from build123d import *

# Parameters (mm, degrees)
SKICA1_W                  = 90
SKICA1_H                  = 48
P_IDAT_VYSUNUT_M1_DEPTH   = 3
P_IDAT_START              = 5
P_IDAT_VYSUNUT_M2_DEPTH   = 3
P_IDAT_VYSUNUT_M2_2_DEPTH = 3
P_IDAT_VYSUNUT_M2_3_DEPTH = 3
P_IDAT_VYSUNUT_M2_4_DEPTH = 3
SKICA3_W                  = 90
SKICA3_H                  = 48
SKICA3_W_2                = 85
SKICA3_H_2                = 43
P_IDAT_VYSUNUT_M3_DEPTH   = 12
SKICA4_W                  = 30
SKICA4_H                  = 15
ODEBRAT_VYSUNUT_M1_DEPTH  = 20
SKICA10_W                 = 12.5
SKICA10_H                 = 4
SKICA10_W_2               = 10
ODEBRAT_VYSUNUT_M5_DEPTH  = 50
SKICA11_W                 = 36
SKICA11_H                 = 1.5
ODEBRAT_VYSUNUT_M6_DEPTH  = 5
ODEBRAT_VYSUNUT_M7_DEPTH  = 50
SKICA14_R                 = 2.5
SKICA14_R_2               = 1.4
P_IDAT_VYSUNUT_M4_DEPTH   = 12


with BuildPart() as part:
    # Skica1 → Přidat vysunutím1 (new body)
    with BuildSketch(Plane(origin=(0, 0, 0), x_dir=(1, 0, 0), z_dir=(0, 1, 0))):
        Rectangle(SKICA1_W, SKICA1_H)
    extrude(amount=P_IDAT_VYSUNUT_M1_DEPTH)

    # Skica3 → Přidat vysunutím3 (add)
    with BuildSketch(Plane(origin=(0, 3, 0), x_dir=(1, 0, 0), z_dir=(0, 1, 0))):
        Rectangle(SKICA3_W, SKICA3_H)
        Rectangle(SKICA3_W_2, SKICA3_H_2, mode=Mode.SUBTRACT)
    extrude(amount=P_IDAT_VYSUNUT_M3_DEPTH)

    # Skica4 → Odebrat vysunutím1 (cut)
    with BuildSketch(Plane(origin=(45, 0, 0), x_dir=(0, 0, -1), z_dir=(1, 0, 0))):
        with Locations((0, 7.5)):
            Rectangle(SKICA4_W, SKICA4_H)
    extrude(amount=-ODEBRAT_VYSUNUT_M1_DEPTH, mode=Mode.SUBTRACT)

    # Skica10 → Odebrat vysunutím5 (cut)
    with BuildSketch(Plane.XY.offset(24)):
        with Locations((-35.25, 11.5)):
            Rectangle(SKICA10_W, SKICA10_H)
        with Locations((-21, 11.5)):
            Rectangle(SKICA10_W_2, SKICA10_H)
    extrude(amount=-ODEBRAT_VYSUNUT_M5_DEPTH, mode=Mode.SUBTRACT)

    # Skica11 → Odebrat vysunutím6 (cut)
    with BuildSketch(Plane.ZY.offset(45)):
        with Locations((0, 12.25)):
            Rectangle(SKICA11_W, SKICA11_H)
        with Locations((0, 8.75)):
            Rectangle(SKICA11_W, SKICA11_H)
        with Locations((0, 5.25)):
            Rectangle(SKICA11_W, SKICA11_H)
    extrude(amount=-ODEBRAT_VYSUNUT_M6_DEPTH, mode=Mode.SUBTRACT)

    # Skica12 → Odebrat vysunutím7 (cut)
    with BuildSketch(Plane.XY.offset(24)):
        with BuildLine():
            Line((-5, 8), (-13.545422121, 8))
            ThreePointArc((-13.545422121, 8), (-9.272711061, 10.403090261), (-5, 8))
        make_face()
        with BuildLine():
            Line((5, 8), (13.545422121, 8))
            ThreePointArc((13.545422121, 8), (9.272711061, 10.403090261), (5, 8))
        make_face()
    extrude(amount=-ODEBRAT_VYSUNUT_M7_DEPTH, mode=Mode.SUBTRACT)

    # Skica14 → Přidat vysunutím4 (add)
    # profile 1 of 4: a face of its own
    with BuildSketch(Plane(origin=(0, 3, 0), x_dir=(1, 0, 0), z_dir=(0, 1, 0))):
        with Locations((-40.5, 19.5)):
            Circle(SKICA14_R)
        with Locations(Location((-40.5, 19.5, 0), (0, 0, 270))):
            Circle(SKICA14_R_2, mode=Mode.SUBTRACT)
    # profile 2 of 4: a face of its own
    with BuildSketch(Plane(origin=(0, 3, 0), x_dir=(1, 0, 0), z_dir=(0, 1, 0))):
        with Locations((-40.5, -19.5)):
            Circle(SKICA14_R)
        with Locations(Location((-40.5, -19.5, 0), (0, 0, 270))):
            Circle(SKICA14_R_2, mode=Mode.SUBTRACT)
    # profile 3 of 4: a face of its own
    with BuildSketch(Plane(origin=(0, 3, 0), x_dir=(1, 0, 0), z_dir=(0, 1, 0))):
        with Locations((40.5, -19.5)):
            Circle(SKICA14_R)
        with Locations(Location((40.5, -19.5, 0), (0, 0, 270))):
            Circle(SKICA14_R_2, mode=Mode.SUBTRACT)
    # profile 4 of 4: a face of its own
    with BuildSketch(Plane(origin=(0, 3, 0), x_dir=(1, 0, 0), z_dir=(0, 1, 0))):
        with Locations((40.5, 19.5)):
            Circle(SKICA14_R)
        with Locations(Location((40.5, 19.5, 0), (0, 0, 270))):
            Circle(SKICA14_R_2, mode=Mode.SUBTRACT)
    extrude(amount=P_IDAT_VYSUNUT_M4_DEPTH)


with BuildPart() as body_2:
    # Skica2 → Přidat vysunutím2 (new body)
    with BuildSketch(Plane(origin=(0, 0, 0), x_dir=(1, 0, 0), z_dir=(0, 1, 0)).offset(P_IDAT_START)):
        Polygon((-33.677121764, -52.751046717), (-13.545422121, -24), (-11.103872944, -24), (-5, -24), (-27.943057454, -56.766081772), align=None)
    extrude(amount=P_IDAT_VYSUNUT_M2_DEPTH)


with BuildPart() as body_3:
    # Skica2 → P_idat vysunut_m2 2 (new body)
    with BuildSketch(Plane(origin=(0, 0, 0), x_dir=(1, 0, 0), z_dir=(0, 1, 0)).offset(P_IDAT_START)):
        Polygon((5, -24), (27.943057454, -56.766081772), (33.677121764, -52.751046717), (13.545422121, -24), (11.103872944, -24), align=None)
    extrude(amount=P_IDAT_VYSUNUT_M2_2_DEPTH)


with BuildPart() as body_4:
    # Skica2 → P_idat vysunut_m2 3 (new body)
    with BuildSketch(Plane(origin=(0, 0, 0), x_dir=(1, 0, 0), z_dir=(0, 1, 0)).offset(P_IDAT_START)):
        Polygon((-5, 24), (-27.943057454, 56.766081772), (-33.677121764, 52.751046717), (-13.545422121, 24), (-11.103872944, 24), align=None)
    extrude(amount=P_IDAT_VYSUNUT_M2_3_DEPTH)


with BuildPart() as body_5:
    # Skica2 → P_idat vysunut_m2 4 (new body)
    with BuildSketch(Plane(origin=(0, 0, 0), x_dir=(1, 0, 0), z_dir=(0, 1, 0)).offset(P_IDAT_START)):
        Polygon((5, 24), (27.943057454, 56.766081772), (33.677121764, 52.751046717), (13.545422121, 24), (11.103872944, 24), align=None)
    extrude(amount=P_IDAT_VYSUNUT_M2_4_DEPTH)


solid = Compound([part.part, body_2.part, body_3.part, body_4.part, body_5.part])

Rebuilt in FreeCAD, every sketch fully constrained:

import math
import FreeCAD as App
import Part
import Sketcher

V = App.Vector
Q = App.Units.Quantity


def add_polygon(sketch, points):
    """Adds a closed chain of lines whose ends are joined by coincident constraints."""
    first, n = sketch.GeometryCount, len(points)
    for a, b in zip(points, points[1:] + points[:1]):
        sketch.addGeometry(Part.LineSegment(App.Vector(*a, 0), App.Vector(*b, 0)), False)
    for i in range(n):
        sketch.addConstraint(Sketcher.Constraint("Coincident", first + i, 2, first + (i + 1) % n, 1))

doc = App.newDocument("Part")
params = doc.addObject("Spreadsheet::Sheet", "Params")
for row, (alias, value) in enumerate([
    ("sketch1_width", "90 mm"),
    ("sketch1_height", "48 mm"),
    ("pad1_length", "3 mm"),
    ("sketch2_width", "90 mm"),
    ("sketch2_width2", "85 mm"),
    ("sketch2_height", "48 mm"),
    ("sketch2_height2", "43 mm"),
    ("pad2_length", "12 mm"),
    ("sketch3_width", "15 mm"),
    ("sketch3_height", "30 mm"),
    ("pocket1_length", "20 mm"),
    ("sketch4_width", "10 mm"),
    ("sketch4_height", "4 mm"),
    ("sketch4_width2", "12.5 mm"),
    ("pocket2_length", "50 mm"),
    ("sketch5_height", "36 mm"),
    ("sketch5_width", "1.5 mm"),
    ("pocket3_length", "5 mm"),
    ("sketch6_radius", "5 mm"),
    ("pocket4_length", "50 mm"),
    ("sketch7_diameter", "5 mm"),
    ("sketch7_diameter2", "2.8 mm"),
    ("pad3_length", "12 mm"),
    ("sketch8_length", "7 mm"),
    ("sketch8_length2", "40 mm"),
    ("pad4_length", "3 mm"),
    ("sketch9_length", "40 mm"),
    ("sketch9_length2", "7 mm"),
    ("pad5_length", "3 mm"),
    ("sketch10_length", "40 mm"),
    ("sketch10_length2", "7 mm"),
    ("pad6_length", "3 mm"),
    ("sketch11_length", "40 mm"),
    ("sketch11_length2", "7 mm"),
    ("pad7_length", "3 mm"),
], start=1):
    params.set(f"A{row}", alias)
    params.set(f"B{row}", "=" + value)
    params.setAlias(f"B{row}", alias)

body = doc.addObject("PartDesign::Body", "Body")

# Sketch on XZ plane
sketch1 = body.newObject("Sketcher::SketchObject", "Sketch")
sketch1.AttachmentSupport = (doc.getObject("XZ_Plane"), [""])
sketch1.MapMode = "FlatFace"
add_polygon(sketch1, [(-45, -24), (-45, 24), (45, 24), (45, -24)])  # lines 0-3
sketch1.addConstraint([
    Sketcher.Constraint("Vertical", 0),
    Sketcher.Constraint("Horizontal", 1),
    Sketcher.Constraint("Vertical", 2),
    Sketcher.Constraint("Horizontal", 3),
    Sketcher.Constraint("Symmetric", 0, 2, 2, 2, -1, 1),
    Sketcher.Constraint("DistanceX", 1, 1, 1, 2, Q("90 mm")),
    Sketcher.Constraint("DistanceY", 0, 1, 0, 2, Q("48 mm")),
])
sketch1.setExpression("Constraints[9]", "Params.sketch1_width")
sketch1.setExpression("Constraints[10]", "Params.sketch1_height")
pad1 = body.newObject("PartDesign::Pad", "Pad")
pad1.Profile = sketch1
pad1.setExpression("Length", "Params.pad1_length")
pad1.Reversed = True

# Sketch on XZ plane
sketch2 = body.newObject("Sketcher::SketchObject", "Sketch001")
sketch2.AttachmentSupport = (doc.getObject("XZ_Plane"), [""])
sketch2.MapMode = "FlatFace"
sketch2.AttachmentOffset = App.Placement(V(0, 0, -3), App.Rotation())
add_polygon(sketch2, [(-45, -24), (-45, 24), (45, 24), (45, -24)])  # lines 0-3
add_polygon(sketch2, [(42.5, 21.5), (-42.5, 21.5), (-42.5, -21.5), (42.5, -21.5)])  # lines 4-7
sketch2.addConstraint([
    Sketcher.Constraint("Vertical", 0),
    Sketcher.Constraint("Horizontal", 1),
    Sketcher.Constraint("Vertical", 2),
    Sketcher.Constraint("Horizontal", 3),
    Sketcher.Constraint("Horizontal", 4),
    Sketcher.Constraint("Vertical", 5),
    Sketcher.Constraint("Horizontal", 6),
    Sketcher.Constraint("Vertical", 7),
    Sketcher.Constraint("Symmetric", 0, 2, 2, 2, -1, 1),
    Sketcher.Constraint("Symmetric", 4, 2, 6, 2, -1, 1),
    Sketcher.Constraint("DistanceX", 1, 1, 1, 2, Q("90 mm")),
    Sketcher.Constraint("DistanceX", 4, 2, 4, 1, Q("85 mm")),
    Sketcher.Constraint("DistanceY", 0, 1, 0, 2, Q("48 mm")),
    Sketcher.Constraint("DistanceY", 5, 2, 5, 1, Q("43 mm")),
])
sketch2.setExpression("Constraints[18]", "Params.sketch2_width")
sketch2.setExpression("Constraints[19]", "Params.sketch2_width2")
sketch2.setExpression("Constraints[20]", "Params.sketch2_height")
sketch2.setExpression("Constraints[21]", "Params.sketch2_height2")
pad2 = body.newObject("PartDesign::Pad", "Pad001")
pad2.Profile = sketch2
pad2.setExpression("Length", "Params.pad2_length")
pad2.Reversed = True

# Sketch on YZ plane
sketch3 = body.newObject("Sketcher::SketchObject", "Sketch002")
sketch3.AttachmentSupport = (doc.getObject("YZ_Plane"), [""])
sketch3.MapMode = "FlatFace"
sketch3.AttachmentOffset = App.Placement(V(0, 0, 45), App.Rotation())
add_polygon(sketch3, [(15, 15), (0, 15), (0, -15), (15, -15)])  # lines 0-3
sketch3.addConstraint([
    Sketcher.Constraint("Horizontal", 0),
    Sketcher.Constraint("Vertical", 1),
    Sketcher.Constraint("Horizontal", 2),
    Sketcher.Constraint("Vertical", 3),
    Sketcher.Constraint("Symmetric", 0, 2, 1, 2, -1, 1),
    Sketcher.Constraint("DistanceX", 0, 2, 0, 1, Q("15 mm")),
    Sketcher.Constraint("DistanceY", 1, 2, 1, 1, Q("30 mm")),
])
sketch3.setExpression("Constraints[9]", "Params.sketch3_width")
sketch3.setExpression("Constraints[10]", "Params.sketch3_height")
pocket1 = body.newObject("PartDesign::Pocket", "Pocket")
pocket1.Profile = sketch3
pocket1.setExpression("Length", "Params.pocket1_length")

# Sketch on XY plane
sketch4 = body.newObject("Sketcher::SketchObject", "Sketch003")
sketch4.AttachmentSupport = (doc.getObject("XY_Plane"), [""])
sketch4.MapMode = "FlatFace"
sketch4.AttachmentOffset = App.Placement(V(0, 0, 24), App.Rotation())
add_polygon(sketch4, [(-41.5, 13.5), (-41.5, 9.5), (-29, 9.5), (-29, 13.5)])  # lines 0-3
add_polygon(sketch4, [(-26, 13.5), (-26, 9.5), (-16, 9.5), (-16, 13.5)])  # lines 4-7
sketch4.addConstraint([
    Sketcher.Constraint("Vertical", 0),
    Sketcher.Constraint("Horizontal", 1),
    Sketcher.Constraint("Vertical", 2),
    Sketcher.Constraint("Horizontal", 3),
    Sketcher.Constraint("Vertical", 4),
    Sketcher.Constraint("Horizontal", 5),
    Sketcher.Constraint("Vertical", 6),
    Sketcher.Constraint("Horizontal", 7),
    Sketcher.Constraint("Horizontal", 1, 2, 4, 2),
    Sketcher.Constraint("Horizontal", 3, 2, 6, 2),
    Sketcher.Constraint("DistanceX", 5, 1, 5, 2, Q("10 mm")),
    Sketcher.Constraint("DistanceY", 0, 2, 0, 1, Q("4 mm")),
    Sketcher.Constraint("DistanceX", 1, 1, 1, 2, Q("12.5 mm")),
    Sketcher.Constraint("DistanceX", 1, 2, -1, 1, Q("29 mm")),
    Sketcher.Constraint("DistanceX", 4, 2, -1, 1, Q("26 mm")),
    Sketcher.Constraint("DistanceY", -1, 1, 0, 2, Q("9.5 mm")),
])
sketch4.setExpression("Constraints[18]", "Params.sketch4_width")
sketch4.setExpression("Constraints[19]", "Params.sketch4_height")
sketch4.setExpression("Constraints[20]", "Params.sketch4_width2")
pocket2 = body.newObject("PartDesign::Pocket", "Pocket001")
pocket2.Profile = sketch4
pocket2.setExpression("Length", "Params.pocket2_length")

# Sketch on YZ plane
sketch5 = body.newObject("Sketcher::SketchObject", "Sketch004")
sketch5.AttachmentSupport = (doc.getObject("YZ_Plane"), [""])
sketch5.MapMode = "FlatFace"
sketch5.AttachmentOffset = App.Placement(V(0, 0, -45), App.Rotation())
add_polygon(sketch5, [(13, -18), (11.5, -18), (11.5, 18), (13, 18)])  # lines 0-3
add_polygon(sketch5, [(9.5, -18), (8, -18), (8, 18), (9.5, 18)])  # lines 4-7
add_polygon(sketch5, [(6, -18), (4.5, -18), (4.5, 18), (6, 18)])  # lines 8-11
sketch5.addConstraint([
    Sketcher.Constraint("Horizontal", 0),
    Sketcher.Constraint("Vertical", 1),
    Sketcher.Constraint("Horizontal", 2),
    Sketcher.Constraint("Vertical", 3),
    Sketcher.Constraint("Horizontal", 4),
    Sketcher.Constraint("Vertical", 5),
    Sketcher.Constraint("Horizontal", 6),
    Sketcher.Constraint("Vertical", 7),
    Sketcher.Constraint("Horizontal", 8),
    Sketcher.Constraint("Vertical", 9),
    Sketcher.Constraint("Horizontal", 10),
    Sketcher.Constraint("Vertical", 11),
    Sketcher.Constraint("Horizontal", 3, 2, 4, 2),
    Sketcher.Constraint("Horizontal", 2, 2, 5, 2),
    Sketcher.Constraint("Horizontal", 7, 2, 8, 2),
    Sketcher.Constraint("Horizontal", 6, 2, 9, 2),
    Sketcher.Constraint("Equal", 2, 4),
    Sketcher.Constraint("Equal", 6, 8),
    Sketcher.Constraint("DistanceY", 1, 1, 1, 2, Q("36 mm")),
    Sketcher.Constraint("DistanceX", 0, 2, 0, 1, Q("1.5 mm")),
    Sketcher.Constraint("DistanceY", 0, 2, -1, 1, Q("18 mm")),
    Sketcher.Constraint("DistanceX", -1, 1, 2, 2, Q("13 mm")),
    Sketcher.Constraint("DistanceX", -1, 1, 4, 2, Q("8 mm")),
    Sketcher.Constraint("DistanceX", -1, 1, 10, 2, Q("6 mm")),
])
sketch5.setExpression("Constraints[30]", "Params.sketch5_height")
sketch5.setExpression("Constraints[31]", "Params.sketch5_width")
pocket3 = body.newObject("PartDesign::Pocket", "Pocket002")
pocket3.Profile = sketch5
pocket3.setExpression("Length", "Params.pocket3_length")
pocket3.Reversed = True

# Sketch on XY plane
sketch6 = body.newObject("Sketcher::SketchObject", "Sketch005")
sketch6.AttachmentSupport = (doc.getObject("XY_Plane"), [""])
sketch6.MapMode = "FlatFace"
sketch6.AttachmentOffset = App.Placement(V(0, 0, 24), App.Rotation())
sketch6.addGeometry([
    Part.LineSegment(V(-13.545422, 8, 0), V(-5, 8, 0)),
    Part.ArcOfCircle(Part.Circle(V(-9.272711, 5.40309, 0), V(0, 0, 1), 5), math.radians(31.290803), math.radians(148.709197)),
    Part.LineSegment(V(5, 8, 0), V(13.545422, 8, 0)),
    Part.ArcOfCircle(Part.Circle(V(9.272711, 5.40309, 0), V(0, 0, 1), 5), math.radians(31.290803), math.radians(148.709197)),
], False)
sketch6.addConstraint([
    Sketcher.Constraint("Coincident", 0, 1, 1, 2),
    Sketcher.Constraint("Coincident", 1, 1, 0, 2),
    Sketcher.Constraint("Coincident", 2, 1, 3, 2),
    Sketcher.Constraint("Coincident", 3, 1, 2, 2),
    Sketcher.Constraint("Horizontal", 0),
    Sketcher.Constraint("Horizontal", 2),
    Sketcher.Constraint("Equal", 1, 3),
    Sketcher.Constraint("Symmetric", 1, 3, 3, 3, -2),
    Sketcher.Constraint("Horizontal", 1, 1, 2, 1),
    Sketcher.Constraint("Radius", 1, Q("5 mm")),
    Sketcher.Constraint("DistanceY", -1, 1, 0, 1, Q("8 mm")),
    Sketcher.Constraint("DistanceX", 1, 1, -1, 1, Q("5 mm")),
    Sketcher.Constraint("DistanceX", 0, 1, 0, 2, Q("8.545422 mm")),
])
sketch6.setExpression("Constraints[9]", "Params.sketch6_radius")
pocket4 = body.newObject("PartDesign::Pocket", "Pocket003")
pocket4.Profile = sketch6
pocket4.setExpression("Length", "Params.pocket4_length")

# Sketch on XZ plane
sketch7 = body.newObject("Sketcher::SketchObject", "Sketch006")
sketch7.AttachmentSupport = (doc.getObject("XZ_Plane"), [""])
sketch7.MapMode = "FlatFace"
sketch7.AttachmentOffset = App.Placement(V(0, 0, -3), App.Rotation())
sketch7.addGeometry([
    Part.Circle(V(-40.5, -19.5, 0), V(0, 0, 1), 2.5),  # 0
    Part.Circle(V(-40.5, -19.5, 0), V(0, 0, 1), 1.4),  # 1
    Part.Circle(V(-40.5, 19.5, 0), V(0, 0, 1), 2.5),  # 2
    Part.Circle(V(-40.5, 19.5, 0), V(0, 0, 1), 1.4),  # 3
    Part.Circle(V(40.5, 19.5, 0), V(0, 0, 1), 2.5),  # 4
    Part.Circle(V(40.5, 19.5, 0), V(0, 0, 1), 1.4),  # 5
    Part.Circle(V(40.5, -19.5, 0), V(0, 0, 1), 2.5),  # 6
    Part.Circle(V(40.5, -19.5, 0), V(0, 0, 1), 1.4),  # 7
], False)
sketch7.addConstraint([
    Sketcher.Constraint("Coincident", 1, 3, 0, 3),
    Sketcher.Constraint("Coincident", 3, 3, 2, 3),
    Sketcher.Constraint("Coincident", 5, 3, 4, 3),
    Sketcher.Constraint("Coincident", 7, 3, 6, 3),
    Sketcher.Constraint("Equal", 0, 2),
    Sketcher.Constraint("Equal", 1, 3),
    Sketcher.Constraint("Equal", 2, 4),
    Sketcher.Constraint("Equal", 3, 5),
    Sketcher.Constraint("Equal", 4, 6),
    Sketcher.Constraint("Equal", 5, 7),
    Sketcher.Constraint("Symmetric", 0, 3, 4, 3, -1, 1),
    Sketcher.Constraint("Symmetric", 2, 3, 6, 3, -1, 1),
    Sketcher.Constraint("Symmetric", 2, 3, 4, 3, -2),
    Sketcher.Constraint("Diameter", 0, Q("5 mm")),
    Sketcher.Constraint("Diameter", 1, Q("2.8 mm")),
    Sketcher.Constraint("DistanceY", 0, 3, 2, 3, Q("39 mm")),
    Sketcher.Constraint("DistanceX", 2, 3, 4, 3, Q("81 mm")),
])
sketch7.setExpression("Constraints[13]", "Params.sketch7_diameter")
sketch7.setExpression("Constraints[14]", "Params.sketch7_diameter2")
pad3 = body.newObject("PartDesign::Pad", "Pad002")
pad3.Profile = sketch7
pad3.setExpression("Length", "Params.pad3_length")
pad3.Reversed = True
body2 = doc.addObject("PartDesign::Body", "Body001")

# Sketch on XZ plane
sketch8 = body2.newObject("Sketcher::SketchObject", "Sketch007")
sketch8.AttachmentSupport = (doc.getObject("XZ_Plane001"), [""])
sketch8.MapMode = "FlatFace"
sketch8.AttachmentOffset = App.Placement(V(0, 0, -5), App.Rotation())
add_polygon(sketch8, [(-13.545422, 24), (-33.677122, 52.751047), (-27.943057, 56.766082), (-5, 24)])  # lines 0-3
sketch8.addConstraint([
    Sketcher.Constraint("Horizontal", 3),
    Sketcher.Constraint("Perpendicular", 0, 1),
    Sketcher.Constraint("Perpendicular", 1, 2),
    Sketcher.Constraint("Angle", 0, Q("125 deg")),
    Sketcher.Constraint("Distance", 1, Q("7 mm")),
    Sketcher.Constraint("Distance", 2, Q("40 mm")),
    Sketcher.Constraint("DistanceX", 2, 2, -1, 1, Q("5 mm")),
    Sketcher.Constraint("DistanceY", -1, 1, 2, 2, Q("24 mm")),
])
sketch8.setExpression("Constraints[8]", "Params.sketch8_length")
sketch8.setExpression("Constraints[9]", "Params.sketch8_length2")
pad4 = body2.newObject("PartDesign::Pad", "Pad003")
pad4.Profile = sketch8
pad4.setExpression("Length", "Params.pad4_length")
pad4.Reversed = True
body3 = doc.addObject("PartDesign::Body", "Body002")

# Sketch on XZ plane
sketch9 = body3.newObject("Sketcher::SketchObject", "Sketch008")
sketch9.AttachmentSupport = (doc.getObject("XZ_Plane002"), [""])
sketch9.MapMode = "FlatFace"
sketch9.AttachmentOffset = App.Placement(V(0, 0, -5), App.Rotation())
add_polygon(sketch9, [(5, 24), (27.943057, 56.766082), (33.677122, 52.751047), (13.545422, 24)])  # lines 0-3
sketch9.addConstraint([
    Sketcher.Constraint("Horizontal", 3),
    Sketcher.Constraint("Perpendicular", 0, 1),
    Sketcher.Constraint("Perpendicular", 1, 2),
    Sketcher.Constraint("Angle", 0, Q("55 deg")),
    Sketcher.Constraint("Distance", 0, Q("40 mm")),
    Sketcher.Constraint("Distance", 1, Q("7 mm")),
    Sketcher.Constraint("DistanceY", -1, 1, 2, 2, Q("24 mm")),
    Sketcher.Constraint("DistanceX", -1, 1, 3, 2, Q("5 mm")),
])
sketch9.setExpression("Constraints[8]", "Params.sketch9_length")
sketch9.setExpression("Constraints[9]", "Params.sketch9_length2")
pad5 = body3.newObject("PartDesign::Pad", "Pad004")
pad5.Profile = sketch9
pad5.setExpression("Length", "Params.pad5_length")
pad5.Reversed = True
body4 = doc.addObject("PartDesign::Body", "Body003")

# Sketch on XZ plane
sketch10 = body4.newObject("Sketcher::SketchObject", "Sketch009")
sketch10.AttachmentSupport = (doc.getObject("XZ_Plane003"), [""])
sketch10.MapMode = "FlatFace"
sketch10.AttachmentOffset = App.Placement(V(0, 0, -5), App.Rotation())
add_polygon(sketch10, [(-5, -24), (-27.943057, -56.766082), (-33.677122, -52.751047), (-13.545422, -24)])  # lines 0-3
sketch10.addConstraint([
    Sketcher.Constraint("Horizontal", 3),
    Sketcher.Constraint("Perpendicular", 0, 1),
    Sketcher.Constraint("Perpendicular", 1, 2),
    Sketcher.Constraint("Angle", 0, Q("-125 deg")),
    Sketcher.Constraint("Distance", 0, Q("40 mm")),
    Sketcher.Constraint("Distance", 1, Q("7 mm")),
    Sketcher.Constraint("DistanceY", 2, 2, -1, 1, Q("24 mm")),
    Sketcher.Constraint("DistanceX", 3, 2, -1, 1, Q("5 mm")),
])
sketch10.setExpression("Constraints[8]", "Params.sketch10_length")
sketch10.setExpression("Constraints[9]", "Params.sketch10_length2")
pad6 = body4.newObject("PartDesign::Pad", "Pad005")
pad6.Profile = sketch10
pad6.setExpression("Length", "Params.pad6_length")
pad6.Reversed = True
body5 = doc.addObject("PartDesign::Body", "Body004")

# Sketch on XZ plane
sketch11 = body5.newObject("Sketcher::SketchObject", "Sketch010")
sketch11.AttachmentSupport = (doc.getObject("XZ_Plane004"), [""])
sketch11.MapMode = "FlatFace"
sketch11.AttachmentOffset = App.Placement(V(0, 0, -5), App.Rotation())
add_polygon(sketch11, [(27.943057, -56.766082), (5, -24), (13.545422, -24), (33.677122, -52.751047)])  # lines 0-3
sketch11.addConstraint([
    Sketcher.Constraint("Horizontal", 1),
    Sketcher.Constraint("Parallel", 0, 2),
    Sketcher.Constraint("Perpendicular", 2, 3),
    Sketcher.Constraint("Angle", 0, Q("125 deg")),
    Sketcher.Constraint("Distance", 0, Q("40 mm")),
    Sketcher.Constraint("Distance", 3, Q("7 mm")),
    Sketcher.Constraint("DistanceX", -1, 1, 0, 2, Q("5 mm")),
    Sketcher.Constraint("DistanceY", 0, 2, -1, 1, Q("24 mm")),
])
sketch11.setExpression("Constraints[8]", "Params.sketch11_length")
sketch11.setExpression("Constraints[9]", "Params.sketch11_length2")
pad7 = body5.newObject("PartDesign::Pad", "Pad006")
pad7.Profile = sketch11
pad7.setExpression("Length", "Params.pad7_length")
pad7.Reversed = True

doc.recompute()
